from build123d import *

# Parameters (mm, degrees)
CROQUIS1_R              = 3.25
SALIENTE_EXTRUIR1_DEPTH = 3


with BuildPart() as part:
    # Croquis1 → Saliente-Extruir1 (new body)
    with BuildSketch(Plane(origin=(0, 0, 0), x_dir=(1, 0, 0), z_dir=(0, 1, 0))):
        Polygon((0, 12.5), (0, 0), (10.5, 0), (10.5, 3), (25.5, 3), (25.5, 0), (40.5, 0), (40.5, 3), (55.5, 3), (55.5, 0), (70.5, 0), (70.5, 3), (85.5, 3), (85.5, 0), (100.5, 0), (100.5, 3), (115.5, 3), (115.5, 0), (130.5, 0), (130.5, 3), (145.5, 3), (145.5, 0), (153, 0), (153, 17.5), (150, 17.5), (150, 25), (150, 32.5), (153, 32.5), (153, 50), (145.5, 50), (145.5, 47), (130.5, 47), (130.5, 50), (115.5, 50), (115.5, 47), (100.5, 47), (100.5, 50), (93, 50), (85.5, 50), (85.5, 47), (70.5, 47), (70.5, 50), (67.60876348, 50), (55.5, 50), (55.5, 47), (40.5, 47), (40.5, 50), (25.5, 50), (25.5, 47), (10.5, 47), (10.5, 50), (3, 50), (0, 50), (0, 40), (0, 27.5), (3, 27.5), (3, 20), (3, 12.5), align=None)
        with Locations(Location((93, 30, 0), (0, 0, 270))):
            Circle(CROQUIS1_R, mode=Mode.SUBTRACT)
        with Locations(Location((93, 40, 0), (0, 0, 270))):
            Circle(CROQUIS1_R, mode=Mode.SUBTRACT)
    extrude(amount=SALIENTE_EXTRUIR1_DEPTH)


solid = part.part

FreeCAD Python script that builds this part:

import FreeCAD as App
import Part
import Sketcher
from FreeCAD import Vector
Q = App.Units.Quantity

doc = App.newDocument("Part")
body = doc.addObject("PartDesign::Body", "Body")

# Sketch on XZ plane
sketch1 = body.newObject("Sketcher::SketchObject", "Sketch")
sketch1.AttachmentSupport = (doc.getObject("XZ_Plane"), [""])
sketch1.MapMode = "FlatFace"
sketch1.addGeometry(Part.LineSegment(Vector(0, -12.5, 0), Vector(0, 0, 0)), False)
sketch1.addGeometry(Part.LineSegment(Vector(0, 0, 0), Vector(10.5, 0, 0)), False)
sketch1.addGeometry(Part.LineSegment(Vector(10.5, 0, 0), Vector(10.5, -3, 0)), False)
sketch1.addGeometry(Part.LineSegment(Vector(10.5, -3, 0), Vector(25.5, -3, 0)), False)
sketch1.addGeometry(Part.LineSegment(Vector(25.5, -3, 0), Vector(25.5, 0, 0)), False)
sketch1.addGeometry(Part.LineSegment(Vector(25.5, 0, 0), Vector(40.5, 0, 0)), False)
sketch1.addGeometry(Part.LineSegment(Vector(40.5, 0, 0), Vector(40.5, -3, 0)), False)
sketch1.addGeometry(Part.LineSegment(Vector(40.5, -3, 0), Vector(55.5, -3, 0)), False)
sketch1.addGeometry(Part.LineSegment(Vector(55.5, -3, 0), Vector(55.5, 0, 0)), False)
sketch1.addGeometry(Part.LineSegment(Vector(55.5, 0, 0), Vector(70.5, 0, 0)), False)
sketch1.addGeometry(Part.LineSegment(Vector(70.5, 0, 0), Vector(70.5, -3, 0)), False)
sketch1.addGeometry(Part.LineSegment(Vector(70.5, -3, 0), Vector(85.5, -3, 0)), False)
sketch1.addGeometry(Part.LineSegment(Vector(85.5, -3, 0), Vector(85.5, 0, 0)), False)
sketch1.addGeometry(Part.LineSegment(Vector(85.5, 0, 0), Vector(100.5, 0, 0)), False)
sketch1.addGeometry(Part.LineSegment(Vector(100.5, 0, 0), Vector(100.5, -3, 0)), False)
sketch1.addGeometry(Part.LineSegment(Vector(100.5, -3, 0), Vector(115.5, -3, 0)), False)
sketch1.addGeometry(Part.LineSegment(Vector(115.5, -3, 0), Vector(115.5, 0, 0)), False)
sketch1.addGeometry(Part.LineSegment(Vector(115.5, 0, 0), Vector(130.5, 0, 0)), False)
sketch1.addGeometry(Part.LineSegment(Vector(130.5, 0, 0), Vector(130.5, -3, 0)), False)
sketch1.addGeometry(Part.LineSegment(Vector(130.5, -3, 0), Vector(145.5, -3, 0)), False)
sketch1.addGeometry(Part.LineSegment(Vector(145.5, -3, 0), Vector(145.5, 0, 0)), False)
sketch1.addGeometry(Part.LineSegment(Vector(145.5, 0, 0), Vector(153, 0, 0)), False)
sketch1.addGeometry(Part.LineSegment(Vector(153, 0, 0), Vector(153, -17.5, 0)), False)
sketch1.addGeometry(Part.LineSegment(Vector(153, -17.5, 0), Vector(150, -17.5, 0)), False)
sketch1.addGeometry(Part.LineSegment(Vector(150, -17.5, 0), Vector(150, -32.5, 0)), False)
sketch1.addGeometry(Part.LineSegment(Vector(150, -32.5, 0), Vector(153, -32.5, 0)), False)
sketch1.addGeometry(Part.LineSegment(Vector(153, -32.5, 0), Vector(153, -50, 0)), False)
sketch1.addGeometry(Part.LineSegment(Vector(153, -50, 0), Vector(145.5, -50, 0)), False)
sketch1.addGeometry(Part.LineSegment(Vector(145.5, -50, 0), Vector(145.5, -47, 0)), False)
sketch1.addGeometry(Part.LineSegment(Vector(145.5, -47, 0), Vector(130.5, -47, 0)), False)
sketch1.addGeometry(Part.LineSegment(Vector(130.5, -47, 0), Vector(130.5, -50, 0)), False)
sketch1.addGeometry(Part.LineSegment(Vector(130.5, -50, 0), Vector(115.5, -50, 0)), False)
sketch1.addGeometry(Part.LineSegment(Vector(115.5, -50, 0), Vector(115.5, -47, 0)), False)
sketch1.addGeometry(Part.LineSegment(Vector(115.5, -47, 0), Vector(100.5, -47, 0)), False)
sketch1.addGeometry(Part.LineSegment(Vector(100.5, -47, 0), Vector(100.5, -50, 0)), False)
sketch1.addGeometry(Part.LineSegment(Vector(100.5, -50, 0), Vector(85.5, -50, 0)), False)
sketch1.addGeometry(Part.LineSegment(Vector(85.5, -50, 0), Vector(85.5, -47, 0)), False)
sketch1.addGeometry(Part.LineSegment(Vector(85.5, -47, 0), Vector(70.5, -47, 0)), False)
sketch1.addGeometry(Part.LineSegment(Vector(70.5, -47, 0), Vector(70.5, -50, 0)), False)
sketch1.addGeometry(Part.LineSegment(Vector(70.5, -50, 0), Vector(55.5, -50, 0)), False)
sketch1.addGeometry(Part.LineSegment(Vector(55.5, -50, 0), Vector(55.5, -47, 0)), False)
sketch1.addGeometry(Part.LineSegment(Vector(55.5, -47, 0), Vector(40.5, -47, 0)), False)
sketch1.addGeometry(Part.LineSegment(Vector(40.5, -47, 0), Vector(40.5, -50, 0)), False)
sketch1.addGeometry(Part.LineSegment(Vector(40.5, -50, 0), Vector(25.5, -50, 0)), False)
sketch1.addGeometry(Part.LineSegment(Vector(25.5, -50, 0), Vector(25.5, -47, 0)), False)
sketch1.addGeometry(Part.LineSegment(Vector(25.5, -47, 0), Vector(10.5, -47, 0)), False)
sketch1.addGeometry(Part.LineSegment(Vector(10.5, -47, 0), Vector(10.5, -50, 0)), False)
sketch1.addGeometry(Part.LineSegment(Vector(10.5, -50, 0), Vector(0, -50, 0)), False)
sketch1.addGeometry(Part.LineSegment(Vector(0, -50, 0), Vector(0, -27.5, 0)), False)
sketch1.addGeometry(Part.LineSegment(Vector(0, -27.5, 0), Vector(3, -27.5, 0)), False)
sketch1.addGeometry(Part.LineSegment(Vector(3, -27.5, 0), Vector(3, -12.5, 0)), False)
sketch1.addGeometry(Part.LineSegment(Vector(3, -12.5, 0), Vector(0, -12.5, 0)), False)
sketch1.addGeometry(Part.Circle(Vector(93, -30, 0), Vector(0, 0, 1), 3.2), False)
sketch1.addGeometry(Part.Circle(Vector(93, -40, 0), Vector(0, 0, 1), 3.2), False)
sketch1.addConstraint(Sketcher.Constraint("Coincident", 0, 2, 1, 1))
sketch1.addConstraint(Sketcher.Constraint("Coincident", 1, 2, 2, 1))
sketch1.addConstraint(Sketcher.Constraint("Coincident", 2, 2, 3, 1))
sketch1.addConstraint(Sketcher.Constraint("Coincident", 3, 2, 4, 1))
sketch1.addConstraint(Sketcher.Constraint("Coincident", 4, 2, 5, 1))
sketch1.addConstraint(Sketcher.Constraint("Coincident", 5, 2, 6, 1))
sketch1.addConstraint(Sketcher.Constraint("Coincident", 6, 2, 7, 1))
sketch1.addConstraint(Sketcher.Constraint("Coincident", 7, 2, 8, 1))
sketch1.addConstraint(Sketcher.Constraint("Coincident", 8, 2, 9, 1))
sketch1.addConstraint(Sketcher.Constraint("Coincident", 9, 2, 10, 1))
sketch1.addConstraint(Sketcher.Constraint("Coincident", 10, 2, 11, 1))
sketch1.addConstraint(Sketcher.Constraint("Coincident", 11, 2, 12, 1))
sketch1.addConstraint(Sketcher.Constraint("Coincident", 12, 2, 13, 1))
sketch1.addConstraint(Sketcher.Constraint("Coincident", 13, 2, 14, 1))
sketch1.addConstraint(Sketcher.Constraint("Coincident", 14, 2, 15, 1))
sketch1.addConstraint(Sketcher.Constraint("Coincident", 15, 2, 16, 1))
sketch1.addConstraint(Sketcher.Constraint("Coincident", 16, 2, 17, 1))
sketch1.addConstraint(Sketcher.Constraint("Coincident", 17, 2, 18, 1))
sketch1.addConstraint(Sketcher.Constraint("Coincident", 18, 2, 19, 1))
sketch1.addConstraint(Sketcher.Constraint("Coincident", 19, 2, 20, 1))
sketch1.addConstraint(Sketcher.Constraint("Coincident", 20, 2, 21, 1))
sketch1.addConstraint(Sketcher.Constraint("Coincident", 21, 2, 22, 1))
sketch1.addConstraint(Sketcher.Constraint("Coincident", 22, 2, 23, 1))
sketch1.addConstraint(Sketcher.Constraint("Coincident", 23, 2, 24, 1))
sketch1.addConstraint(Sketcher.Constraint("Coincident", 24, 2, 25, 1))
sketch1.addConstraint(Sketcher.Constraint("Coincident", 25, 2, 26, 1))
sketch1.addConstraint(Sketcher.Constraint("Coincident", 26, 2, 27, 1))
sketch1.addConstraint(Sketcher.Constraint("Coincident", 27, 2, 28, 1))
sketch1.addConstraint(Sketcher.Constraint("Coincident", 28, 2, 29, 1))
sketch1.addConstraint(Sketcher.Constraint("Coincident", 29, 2, 30, 1))
sketch1.addConstraint(Sketcher.Constraint("Coincident", 30, 2, 31, 1))
sketch1.addConstraint(Sketcher.Constraint("Coincident", 31, 2, 32, 1))
sketch1.addConstraint(Sketcher.Constraint("Coincident", 32, 2, 33, 1))
sketch1.addConstraint(Sketcher.Constraint("Coincident", 33, 2, 34, 1))
sketch1.addConstraint(Sketcher.Constraint("Coincident", 34, 2, 35, 1))
sketch1.addConstraint(Sketcher.Constraint("Coincident", 35, 2, 36, 1))
sketch1.addConstraint(Sketcher.Constraint("Coincident", 36, 2, 37, 1))
sketch1.addConstraint(Sketcher.Constraint("Coincident", 37, 2, 38, 1))
sketch1.addConstraint(Sketcher.Constraint("Coincident", 38, 2, 39, 1))
sketch1.addConstraint(Sketcher.Constraint("Coincident", 39, 2, 40, 1))
sketch1.addConstraint(Sketcher.Constraint("Coincident", 40, 2, 41, 1))
sketch1.addConstraint(Sketcher.Constraint("Coincident", 41, 2, 42, 1))
sketch1.addConstraint(Sketcher.Constraint("Coincident", 42, 2, 43, 1))
sketch1.addConstraint(Sketcher.Constraint("Coincident", 43, 2, 44, 1))
sketch1.addConstraint(Sketcher.Constraint("Coincident", 44, 2, 45, 1))
sketch1.addConstraint(Sketcher.Constraint("Coincident", 45, 2, 46, 1))
sketch1.addConstraint(Sketcher.Constraint("Coincident", 46, 2, 47, 1))
sketch1.addConstraint(Sketcher.Constraint("Coincident", 47, 2, 48, 1))
sketch1.addConstraint(Sketcher.Constraint("Coincident", 48, 2, 49, 1))
sketch1.addConstraint(Sketcher.Constraint("Coincident", 49, 2, 50, 1))
sketch1.addConstraint(Sketcher.Constraint("Coincident", 50, 2, 51, 1))
sketch1.addConstraint(Sketcher.Constraint("Coincident", 51, 2, 0, 1))
sketch1.addConstraint(Sketcher.Constraint("Vertical", 0))
sketch1.addConstraint(Sketcher.Constraint("Horizontal", 1))
sketch1.addConstraint(Sketcher.Constraint("Vertical", 2))
sketch1.addConstraint(Sketcher.Constraint("Horizontal", 3))
sketch1.addConstraint(Sketcher.Constraint("Vertical", 4))
sketch1.addConstraint(Sketcher.Constraint("Horizontal", 5))
sketch1.addConstraint(Sketcher.Constraint("Vertical", 6))
sketch1.addConstraint(Sketcher.Constraint("Horizontal", 7))
sketch1.addConstraint(Sketcher.Constraint("Vertical", 8))
sketch1.addConstraint(Sketcher.Constraint("Horizontal", 9))
sketch1.addConstraint(Sketcher.Constraint("Vertical", 10))
sketch1.addConstraint(Sketcher.Constraint("Horizontal", 11))
sketch1.addConstraint(Sketcher.Constraint("Vertical", 12))
sketch1.addConstraint(Sketcher.Constraint("Horizontal", 13))
sketch1.addConstraint(Sketcher.Constraint("Vertical", 14))
sketch1.addConstraint(Sketcher.Constraint("Horizontal", 15))
sketch1.addConstraint(Sketcher.Constraint("Vertical", 16))
sketch1.addConstraint(Sketcher.Constraint("Horizontal", 17))
sketch1.addConstraint(Sketcher.Constraint("Vertical", 18))
sketch1.addConstraint(Sketcher.Constraint("Horizontal", 19))
sketch1.addConstraint(Sketcher.Constraint("Vertical", 20))
sketch1.addConstraint(Sketcher.Constraint("Horizontal", 21))
sketch1.addConstraint(Sketcher.Constraint("Vertical", 22))
sketch1.addConstraint(Sketcher.Constraint("Horizontal", 23))
sketch1.addConstraint(Sketcher.Constraint("Vertical", 24))
sketch1.addConstraint(Sketcher.Constraint("Horizontal", 25))
sketch1.addConstraint(Sketcher.Constraint("Vertical", 26))
sketch1.addConstraint(Sketcher.Constraint("Horizontal", 27))
sketch1.addConstraint(Sketcher.Constraint("Vertical", 28))
sketch1.addConstraint(Sketcher.Constraint("Horizontal", 29))
sketch1.addConstraint(Sketcher.Constraint("Vertical", 30))
sketch1.addConstraint(Sketcher.Constraint("Horizontal", 31))
sketch1.addConstraint(Sketcher.Constraint("Vertical", 32))
sketch1.addConstraint(Sketcher.Constraint("Horizontal", 33))
sketch1.addConstraint(Sketcher.Constraint("Vertical", 34))
sketch1.addConstraint(Sketcher.Constraint("Horizontal", 35))
sketch1.addConstraint(Sketcher.Constraint("Vertical", 36))
sketch1.addConstraint(Sketcher.Constraint("Horizontal", 37))
sketch1.addConstraint(Sketcher.Constraint("Vertical", 38))
sketch1.addConstraint(Sketcher.Constraint("Horizontal", 39))
sketch1.addConstraint(Sketcher.Constraint("Vertical", 40))
sketch1.addConstraint(Sketcher.Constraint("Horizontal", 41))
sketch1.addConstraint(Sketcher.Constraint("Vertical", 42))
sketch1.addConstraint(Sketcher.Constraint("Horizontal", 43))
sketch1.addConstraint(Sketcher.Constraint("Vertical", 44))
sketch1.addConstraint(Sketcher.Constraint("Horizontal", 45))
sketch1.addConstraint(Sketcher.Constraint("Vertical", 46))
sketch1.addConstraint(Sketcher.Constraint("Horizontal", 47))
sketch1.addConstraint(Sketcher.Constraint("Vertical", 48))
sketch1.addConstraint(Sketcher.Constraint("Horizontal", 49))
sketch1.addConstraint(Sketcher.Constraint("Vertical", 50))
sketch1.addConstraint(Sketcher.Constraint("Horizontal", 51))
sketch1.addConstraint(Sketcher.Constraint("Coincident", 0, 2, -1, 1))
sketch1.addConstraint(Sketcher.Constraint("Equal", 52, 53))
sketch1.addConstraint(Sketcher.Constraint("PointOnObject", 4, 2, -1))
sketch1.addConstraint(Sketcher.Constraint("PointOnObject", 8, 2, -1))
sketch1.addConstraint(Sketcher.Constraint("PointOnObject", 12, 2, -1))
sketch1.addConstraint(Sketcher.Constraint("PointOnObject", 16, 2, -1))
sketch1.addConstraint(Sketcher.Constraint("PointOnObject", 20, 2, -1))
sketch1.addConstraint(Sketcher.Constraint("PointOnObject", 47, 2, -2))
sketch1.addConstraint(Sketcher.Constraint("Horizontal", 3, 2, 6, 2))
sketch1.addConstraint(Sketcher.Constraint("Horizontal", 7, 2, 10, 2))
sketch1.addConstraint(Sketcher.Constraint("Horizontal", 11, 2, 14, 2))
sketch1.addConstraint(Sketcher.Constraint("Horizontal", 15, 2, 18, 2))
sketch1.addConstraint(Sketcher.Constraint("Horizontal", 27, 2, 30, 2))
sketch1.addConstraint(Sketcher.Constraint("Horizontal", 29, 2, 32, 2))
sketch1.addConstraint(Sketcher.Constraint("Horizontal", 31, 2, 34, 2))
sketch1.addConstraint(Sketcher.Constraint("Horizontal", 33, 2, 36, 2))
sketch1.addConstraint(Sketcher.Constraint("Horizontal", 35, 2, 38, 2))
sketch1.addConstraint(Sketcher.Constraint("Horizontal", 37, 2, 40, 2))
sketch1.addConstraint(Sketcher.Constraint("Horizontal", 39, 2, 42, 2))
sketch1.addConstraint(Sketcher.Constraint("Horizontal", 41, 2, 44, 2))
sketch1.addConstraint(Sketcher.Constraint("Horizontal", 43, 2, 46, 2))
sketch1.addConstraint(Sketcher.Constraint("Vertical", 52, 3, 53, 3))
sketch1.addConstraint(Sketcher.Constraint("Vertical", 22, 2, 25, 2))
sketch1.addConstraint(Sketcher.Constraint("Vertical", 20, 2, 27, 2))
sketch1.addConstraint(Sketcher.Constraint("Vertical", 18, 2, 29, 2))
sketch1.addConstraint(Sketcher.Constraint("Vertical", 16, 2, 31, 2))
sketch1.addConstraint(Sketcher.Constraint("Vertical", 14, 2, 33, 2))
sketch1.addConstraint(Sketcher.Constraint("Vertical", 12, 2, 35, 2))
sketch1.addConstraint(Sketcher.Constraint("Vertical", 10, 2, 37, 2))
sketch1.addConstraint(Sketcher.Constraint("Vertical", 8, 2, 39, 2))
sketch1.addConstraint(Sketcher.Constraint("Vertical", 6, 2, 41, 2))
sketch1.addConstraint(Sketcher.Constraint("Vertical", 4, 2, 43, 2))
sketch1.addConstraint(Sketcher.Constraint("Vertical", 2, 2, 45, 2))
sketch1.addConstraint(Sketcher.Constraint("Equal", 3, 5))
sketch1.addConstraint(Sketcher.Constraint("Equal", 5, 7))
sketch1.addConstraint(Sketcher.Constraint("Equal", 7, 9))
sketch1.addConstraint(Sketcher.Constraint("Equal", 9, 11))
sketch1.addConstraint(Sketcher.Constraint("Equal", 11, 13))
sketch1.addConstraint(Sketcher.Constraint("Equal", 13, 15))
sketch1.addConstraint(Sketcher.Constraint("Equal", 15, 17))
sketch1.addConstraint(Sketcher.Constraint("Equal", 17, 19))
sketch1.addConstraint(Sketcher.Constraint("Equal", 25, 49))
sketch1.addConstraint(Sketcher.Constraint("Equal", 51, 2))
sketch1.addConstraint(Sketcher.Constraint("Equal", 45, 24))
sketch1.addConstraint(Sketcher.Constraint("Equal", 22, 26))
sketch1.addConstraint(Sketcher.Constraint("Equal", 20, 28))
sketch1.addConstraint(Sketcher.Constraint("Equal", 24, 50))
sketch1.addConstraint(Sketcher.Constraint("Diameter", 52, Q("6.5 mm")))
sketch1.addConstraint(Sketcher.Constraint("DistanceX", 3, 1, 3, 2, Q("15 mm")))
sketch1.addConstraint(Sketcher.Constraint("DistanceX", 23, 2, 23, 1, Q("3 mm")))
sketch1.addConstraint(Sketcher.Constraint("DistanceX", 1, 1, 1, 2, Q("10.5 mm")))
sketch1.addConstraint(Sketcher.Constraint("DistanceX", 21, 1, 21, 2, Q("7.5 mm")))
sketch1.addConstraint(Sketcher.Constraint("DistanceY", 0, 1, 0, 2, Q("12.5 mm")))
sketch1.addConstraint(Sketcher.Constraint("DistanceY", 22, 2, 22, 1, Q("17.5 mm")))
sketch1.addConstraint(Sketcher.Constraint("DistanceX", -1, 1, 52, 3, Q("93 mm")))
sketch1.addConstraint(Sketcher.Constraint("DistanceY", 52, 3, -1, 1, Q("30 mm")))
sketch1.addConstraint(Sketcher.Constraint("DistanceY", 53, 3, -1, 1, Q("40 mm")))
pad1 = body.newObject("PartDesign::Pad", "Pad")
pad1.Profile = sketch1
pad1.Length = 3
pad1.Reversed = True

doc.recompute()
